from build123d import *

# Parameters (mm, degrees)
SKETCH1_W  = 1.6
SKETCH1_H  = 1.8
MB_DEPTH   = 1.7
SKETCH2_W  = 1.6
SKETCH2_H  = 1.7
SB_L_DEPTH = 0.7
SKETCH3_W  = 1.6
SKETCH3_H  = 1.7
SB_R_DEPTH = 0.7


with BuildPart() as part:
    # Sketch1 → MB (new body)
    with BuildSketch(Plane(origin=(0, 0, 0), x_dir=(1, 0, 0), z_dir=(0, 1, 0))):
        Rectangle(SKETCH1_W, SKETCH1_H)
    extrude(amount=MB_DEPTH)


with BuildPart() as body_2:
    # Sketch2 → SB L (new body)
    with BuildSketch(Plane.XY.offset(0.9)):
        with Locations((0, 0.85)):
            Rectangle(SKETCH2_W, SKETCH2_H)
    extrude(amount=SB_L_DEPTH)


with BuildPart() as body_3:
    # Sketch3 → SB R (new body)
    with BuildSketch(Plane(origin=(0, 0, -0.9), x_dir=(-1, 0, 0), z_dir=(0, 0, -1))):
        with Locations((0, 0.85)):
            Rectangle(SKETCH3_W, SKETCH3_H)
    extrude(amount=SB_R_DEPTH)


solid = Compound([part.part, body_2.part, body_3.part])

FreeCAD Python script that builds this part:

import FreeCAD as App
import Part
import Sketcher
from FreeCAD import Vector


def add_polygon(sketch, points):
    """Adds a closed chain of lines whose ends are joined by coincident constraints."""
    first, n = sketch.GeometryCount, len(points)
    for a, b in zip(points, points[1:] + points[:1]):
        sketch.addGeometry(Part.LineSegment(App.Vector(*a, 0), App.Vector(*b, 0)), False)
    for i in range(n):
        sketch.addConstraint(Sketcher.Constraint("Coincident", first + i, 2, first + (i + 1) % n, 1))

doc = App.newDocument("Part")
body = doc.addObject("PartDesign::Body", "Body")

sketch1 = body.newObject("Sketcher::SketchObject", "Sketch")
sketch1.AttachmentSupport = (doc.getObject("XZ_Plane"), [""])
sketch1.MapMode = "FlatFace"
add_polygon(sketch1, [(-0.8, -0.9), (-0.8, 0.9), (0.8, 0.9), (0.8, -0.9)])
sketch1.addConstraint(Sketcher.Constraint("Vertical", 0))
sketch1.addConstraint(Sketcher.Constraint("Horizontal", 1))
sketch1.addConstraint(Sketcher.Constraint("Vertical", 2))
sketch1.addConstraint(Sketcher.Constraint("Horizontal", 3))
sketch1.addConstraint(Sketcher.Constraint("Symmetric", 0, 2, 2, 2, -1, 1))
sketch1.addConstraint(Sketcher.Constraint("DistanceX", 1, 1, 1, 2, 1.6))
sketch1.addConstraint(Sketcher.Constraint("DistanceY", 0, 1, 0, 2, 1.8))
pad1 = body.newObject("PartDesign::Pad", "Pad")
pad1.Profile = sketch1
pad1.Length = 1.7
pad1.Reversed = True
body2 = doc.addObject("PartDesign::Body", "Body001")

sketch2 = body2.newObject("Sketcher::SketchObject", "Sketch001")
sketch2.AttachmentSupport = (doc.getObject("XY_Plane001"), [""])
sketch2.MapMode = "FlatFace"
sketch2.AttachmentOffset = App.Placement(Vector(0, 0, 0.9), App.Rotation())
add_polygon(sketch2, [(-0.8, 1.7), (-0.8, 0), (0.8, 0), (0.8, 1.7)])
sketch2.addConstraint(Sketcher.Constraint("Vertical", 0))
sketch2.addConstraint(Sketcher.Constraint("Horizontal", 1))
sketch2.addConstraint(Sketcher.Constraint("Vertical", 2))
sketch2.addConstraint(Sketcher.Constraint("Horizontal", 3))
sketch2.addConstraint(Sketcher.Constraint("Symmetric", 0, 2, 1, 2, -1, 1))
sketch2.addConstraint(Sketcher.Constraint("DistanceX", 1, 1, 1, 2, 1.6))
sketch2.addConstraint(Sketcher.Constraint("DistanceY", 0, 2, 0, 1, 1.7))
pad2 = body2.newObject("PartDesign::Pad", "Pad001")
pad2.Profile = sketch2
pad2.Length = 0.7
body3 = doc.addObject("PartDesign::Body", "Body002")

sketch3 = body3.newObject("Sketcher::SketchObject", "Sketch002")
sketch3.AttachmentSupport = (doc.getObject("XY_Plane002"), [""])
sketch3.MapMode = "FlatFace"
sketch3.AttachmentOffset = App.Placement(Vector(0, 0, -0.9), App.Rotation())
add_polygon(sketch3, [(0.8, 1.7), (0.8, 0), (-0.8, 0), (-0.8, 1.7)])
sketch3.addConstraint(Sketcher.Constraint("Vertical", 0))
sketch3.addConstraint(Sketcher.Constraint("Horizontal", 1))
sketch3.addConstraint(Sketcher.Constraint("Vertical", 2))
sketch3.addConstraint(Sketcher.Constraint("Horizontal", 3))
sketch3.addConstraint(Sketcher.Constraint("Symmetric", 0, 2, 1, 2, -1, 1))
sketch3.addConstraint(Sketcher.Constraint("DistanceX", 1, 2, 1, 1, 1.6))
sketch3.addConstraint(Sketcher.Constraint("DistanceY", 0, 2, 0, 1, 1.7))
pad3 = body3.newObject("PartDesign::Pad", "Pad002")
pad3.Profile = sketch3
pad3.Length = 0.7
pad3.Reversed = True

doc.recompute()
